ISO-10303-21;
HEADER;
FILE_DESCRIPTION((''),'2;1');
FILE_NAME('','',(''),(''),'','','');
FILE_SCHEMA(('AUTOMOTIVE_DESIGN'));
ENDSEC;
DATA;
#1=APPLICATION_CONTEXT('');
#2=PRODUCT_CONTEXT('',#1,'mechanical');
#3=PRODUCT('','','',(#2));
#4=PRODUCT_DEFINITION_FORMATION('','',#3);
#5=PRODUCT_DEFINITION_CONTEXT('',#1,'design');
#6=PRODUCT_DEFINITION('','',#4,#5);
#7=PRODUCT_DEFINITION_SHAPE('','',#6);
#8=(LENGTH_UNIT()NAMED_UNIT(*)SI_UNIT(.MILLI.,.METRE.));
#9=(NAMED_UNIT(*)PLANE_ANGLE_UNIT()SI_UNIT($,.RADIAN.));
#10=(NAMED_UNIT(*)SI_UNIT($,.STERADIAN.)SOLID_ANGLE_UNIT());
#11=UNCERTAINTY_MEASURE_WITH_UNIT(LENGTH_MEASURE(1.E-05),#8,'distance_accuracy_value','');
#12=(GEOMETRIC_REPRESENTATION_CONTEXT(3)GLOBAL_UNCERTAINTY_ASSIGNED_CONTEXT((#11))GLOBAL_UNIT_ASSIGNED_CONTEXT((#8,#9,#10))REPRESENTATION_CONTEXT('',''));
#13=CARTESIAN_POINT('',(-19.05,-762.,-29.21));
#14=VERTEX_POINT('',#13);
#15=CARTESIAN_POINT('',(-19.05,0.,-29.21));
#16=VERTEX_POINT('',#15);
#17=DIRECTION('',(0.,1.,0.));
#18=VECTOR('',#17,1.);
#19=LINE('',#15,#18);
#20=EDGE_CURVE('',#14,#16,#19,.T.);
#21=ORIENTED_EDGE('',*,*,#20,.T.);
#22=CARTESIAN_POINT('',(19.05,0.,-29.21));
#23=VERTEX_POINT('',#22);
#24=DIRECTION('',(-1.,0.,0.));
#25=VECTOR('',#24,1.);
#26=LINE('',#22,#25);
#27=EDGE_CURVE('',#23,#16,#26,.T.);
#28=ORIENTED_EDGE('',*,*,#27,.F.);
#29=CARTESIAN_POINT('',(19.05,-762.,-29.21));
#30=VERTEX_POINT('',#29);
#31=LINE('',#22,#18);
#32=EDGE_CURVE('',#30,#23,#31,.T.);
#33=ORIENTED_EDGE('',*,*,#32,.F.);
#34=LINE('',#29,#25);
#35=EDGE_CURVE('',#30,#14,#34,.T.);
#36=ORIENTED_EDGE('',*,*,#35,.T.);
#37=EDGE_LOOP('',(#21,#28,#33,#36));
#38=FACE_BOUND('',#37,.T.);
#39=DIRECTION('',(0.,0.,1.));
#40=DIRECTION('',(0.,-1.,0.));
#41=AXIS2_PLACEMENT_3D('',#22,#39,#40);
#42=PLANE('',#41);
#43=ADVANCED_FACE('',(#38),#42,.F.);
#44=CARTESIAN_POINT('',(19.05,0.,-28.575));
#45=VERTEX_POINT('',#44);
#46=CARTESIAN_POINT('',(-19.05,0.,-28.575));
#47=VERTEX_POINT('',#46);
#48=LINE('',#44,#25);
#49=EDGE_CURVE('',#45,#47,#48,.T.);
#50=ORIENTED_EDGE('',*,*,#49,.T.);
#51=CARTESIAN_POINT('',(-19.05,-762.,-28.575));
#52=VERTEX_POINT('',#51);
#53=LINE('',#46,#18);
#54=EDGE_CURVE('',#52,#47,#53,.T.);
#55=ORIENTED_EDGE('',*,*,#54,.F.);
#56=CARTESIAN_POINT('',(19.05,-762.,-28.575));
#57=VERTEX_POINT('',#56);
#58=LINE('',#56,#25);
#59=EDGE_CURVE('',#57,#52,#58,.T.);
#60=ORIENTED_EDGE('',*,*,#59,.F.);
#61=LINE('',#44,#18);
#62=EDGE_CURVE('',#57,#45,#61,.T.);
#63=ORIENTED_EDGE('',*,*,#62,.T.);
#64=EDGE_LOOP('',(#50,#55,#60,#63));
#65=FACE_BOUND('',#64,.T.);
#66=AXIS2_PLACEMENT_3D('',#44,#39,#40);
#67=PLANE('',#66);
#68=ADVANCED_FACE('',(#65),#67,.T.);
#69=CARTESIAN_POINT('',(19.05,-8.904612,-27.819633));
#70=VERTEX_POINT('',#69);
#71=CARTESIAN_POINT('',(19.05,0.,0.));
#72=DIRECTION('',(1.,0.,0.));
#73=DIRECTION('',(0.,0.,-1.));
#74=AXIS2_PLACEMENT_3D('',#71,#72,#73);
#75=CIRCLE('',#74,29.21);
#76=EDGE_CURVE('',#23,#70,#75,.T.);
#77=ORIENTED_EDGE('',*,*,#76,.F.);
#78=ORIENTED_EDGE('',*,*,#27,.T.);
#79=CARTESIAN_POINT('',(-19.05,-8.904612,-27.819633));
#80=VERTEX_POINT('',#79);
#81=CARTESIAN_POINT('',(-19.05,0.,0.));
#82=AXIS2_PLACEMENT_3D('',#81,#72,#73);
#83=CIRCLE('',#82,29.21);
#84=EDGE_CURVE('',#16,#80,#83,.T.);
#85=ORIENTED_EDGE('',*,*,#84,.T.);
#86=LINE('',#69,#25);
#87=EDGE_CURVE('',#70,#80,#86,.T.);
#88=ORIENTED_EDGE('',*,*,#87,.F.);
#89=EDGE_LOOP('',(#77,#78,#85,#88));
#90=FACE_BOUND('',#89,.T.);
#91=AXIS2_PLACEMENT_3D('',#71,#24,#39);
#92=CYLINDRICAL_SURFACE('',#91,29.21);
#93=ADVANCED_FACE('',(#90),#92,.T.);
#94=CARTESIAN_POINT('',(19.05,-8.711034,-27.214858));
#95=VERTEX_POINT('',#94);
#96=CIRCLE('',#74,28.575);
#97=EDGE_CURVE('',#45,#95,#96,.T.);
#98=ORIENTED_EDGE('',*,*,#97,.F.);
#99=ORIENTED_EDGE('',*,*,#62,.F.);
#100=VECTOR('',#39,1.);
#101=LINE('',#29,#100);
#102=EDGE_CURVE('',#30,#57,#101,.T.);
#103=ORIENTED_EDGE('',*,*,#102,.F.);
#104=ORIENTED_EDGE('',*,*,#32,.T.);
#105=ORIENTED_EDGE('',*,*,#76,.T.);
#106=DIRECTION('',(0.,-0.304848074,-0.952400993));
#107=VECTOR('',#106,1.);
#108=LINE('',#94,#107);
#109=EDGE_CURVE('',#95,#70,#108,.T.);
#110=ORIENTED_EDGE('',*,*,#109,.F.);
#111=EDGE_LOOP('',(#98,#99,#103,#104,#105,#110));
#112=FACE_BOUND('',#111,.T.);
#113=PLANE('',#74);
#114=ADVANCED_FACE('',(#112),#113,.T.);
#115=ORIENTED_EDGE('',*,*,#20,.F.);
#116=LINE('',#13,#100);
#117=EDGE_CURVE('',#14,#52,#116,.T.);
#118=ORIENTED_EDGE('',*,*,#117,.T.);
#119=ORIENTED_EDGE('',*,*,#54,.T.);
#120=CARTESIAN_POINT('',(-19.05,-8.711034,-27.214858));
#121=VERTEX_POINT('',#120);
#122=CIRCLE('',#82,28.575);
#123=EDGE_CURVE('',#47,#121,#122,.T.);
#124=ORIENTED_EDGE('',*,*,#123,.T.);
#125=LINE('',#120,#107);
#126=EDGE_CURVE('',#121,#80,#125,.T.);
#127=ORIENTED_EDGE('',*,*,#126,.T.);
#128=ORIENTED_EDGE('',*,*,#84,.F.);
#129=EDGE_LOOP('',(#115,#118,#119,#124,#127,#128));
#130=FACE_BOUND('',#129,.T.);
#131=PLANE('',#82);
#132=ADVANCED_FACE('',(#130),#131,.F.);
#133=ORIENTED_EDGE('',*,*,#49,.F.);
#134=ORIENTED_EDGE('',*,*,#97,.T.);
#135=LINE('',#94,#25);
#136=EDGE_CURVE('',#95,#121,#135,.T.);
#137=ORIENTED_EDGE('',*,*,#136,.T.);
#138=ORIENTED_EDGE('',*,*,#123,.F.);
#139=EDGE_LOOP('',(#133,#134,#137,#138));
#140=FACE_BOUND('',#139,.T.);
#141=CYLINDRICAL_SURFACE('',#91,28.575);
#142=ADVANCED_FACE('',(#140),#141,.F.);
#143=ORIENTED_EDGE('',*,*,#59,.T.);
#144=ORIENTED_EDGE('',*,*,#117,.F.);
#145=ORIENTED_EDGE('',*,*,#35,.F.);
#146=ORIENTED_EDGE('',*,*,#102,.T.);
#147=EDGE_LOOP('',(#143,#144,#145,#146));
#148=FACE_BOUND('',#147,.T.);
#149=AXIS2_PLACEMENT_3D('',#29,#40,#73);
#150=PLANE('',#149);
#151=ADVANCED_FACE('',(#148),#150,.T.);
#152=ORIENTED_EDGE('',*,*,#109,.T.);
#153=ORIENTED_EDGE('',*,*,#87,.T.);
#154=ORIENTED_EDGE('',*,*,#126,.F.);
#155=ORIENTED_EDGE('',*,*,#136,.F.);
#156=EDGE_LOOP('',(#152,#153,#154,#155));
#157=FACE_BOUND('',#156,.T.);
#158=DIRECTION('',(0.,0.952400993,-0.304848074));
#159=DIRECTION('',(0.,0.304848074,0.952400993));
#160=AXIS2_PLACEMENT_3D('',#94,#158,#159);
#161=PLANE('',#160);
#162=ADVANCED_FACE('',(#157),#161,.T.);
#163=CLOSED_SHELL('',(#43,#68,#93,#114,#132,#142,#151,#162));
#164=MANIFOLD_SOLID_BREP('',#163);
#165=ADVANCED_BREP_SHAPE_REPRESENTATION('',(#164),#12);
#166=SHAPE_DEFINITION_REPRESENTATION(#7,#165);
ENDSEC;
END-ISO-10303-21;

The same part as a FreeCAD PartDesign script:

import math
import FreeCAD as App
import Part
import Sketcher

V = App.Vector
Q = App.Units.Quantity

doc = App.newDocument("Part")
body = doc.addObject("PartDesign::Body", "Body")

# Sketch on YZ plane
sketch1 = body.newObject("Sketcher::SketchObject", "Sketch")
sketch1.AttachmentSupport = (doc.getObject("YZ_Plane"), [""])
sketch1.MapMode = "FlatFace"
sketch1.addGeometry([
    Part.ArcOfCircle(Part.Circle(V(0, 0, 0), V(0, 0, 1), 28.6), math.radians(-90), math.radians(252)),  # 0
    Part.LineSegment(V(0, -28.6, 0), V(-762, -28.6, 0)),  # 1
    Part.LineSegment(V(-762, -28.6, 0), V(-762, -29.2, 0)),  # 2
    Part.LineSegment(V(-762, -29.2, 0), V(0, -29.2, 0)),  # 3
    Part.ArcOfCircle(Part.Circle(V(0, 0, 0), V(0, 0, 1), 29.2), math.radians(-90), math.radians(252)),  # 4
    Part.LineSegment(V(-8.9, -27.8, 0), V(-8.7, -27.2, 0)),  # 5
], False)
sketch1.addConstraint([
    Sketcher.Constraint("Tangent", 0, 1, 1, 1),
    Sketcher.Constraint("Coincident", 1, 2, 2, 1),
    Sketcher.Constraint("Coincident", 2, 2, 3, 1),
    Sketcher.Constraint("Tangent", 3, 2, 4, 1),
    Sketcher.Constraint("Coincident", 4, 2, 5, 1),
    Sketcher.Constraint("Coincident", 5, 2, 0, 2),
    Sketcher.Constraint("Horizontal", 1),
    Sketcher.Constraint("Vertical", 2),
    Sketcher.Constraint("Horizontal", 3),
    Sketcher.Constraint("Coincident", 0, 3, -1, 1),
    Sketcher.Constraint("Coincident", 4, 3, -1, 1),
    Sketcher.Constraint("DistanceX", 1, 2, 1, 1, Q("30 in")),
    Sketcher.Constraint("Radius", 4, Q("1.15 in")),
    Sketcher.Constraint("Radius", 0, Q("1.125 in")),
    Sketcher.Constraint("DistanceY", 5, 2, -1, 1, 27.214858),
    Sketcher.Constraint("DistanceX", 4, 2, 5, 2, 0.193579),
])
pad1 = body.newObject("PartDesign::Pad", "Pad")
pad1.Profile = sketch1
pad1.Length = Q("1.5 in")
pad1.Midplane = True

doc.recompute()
